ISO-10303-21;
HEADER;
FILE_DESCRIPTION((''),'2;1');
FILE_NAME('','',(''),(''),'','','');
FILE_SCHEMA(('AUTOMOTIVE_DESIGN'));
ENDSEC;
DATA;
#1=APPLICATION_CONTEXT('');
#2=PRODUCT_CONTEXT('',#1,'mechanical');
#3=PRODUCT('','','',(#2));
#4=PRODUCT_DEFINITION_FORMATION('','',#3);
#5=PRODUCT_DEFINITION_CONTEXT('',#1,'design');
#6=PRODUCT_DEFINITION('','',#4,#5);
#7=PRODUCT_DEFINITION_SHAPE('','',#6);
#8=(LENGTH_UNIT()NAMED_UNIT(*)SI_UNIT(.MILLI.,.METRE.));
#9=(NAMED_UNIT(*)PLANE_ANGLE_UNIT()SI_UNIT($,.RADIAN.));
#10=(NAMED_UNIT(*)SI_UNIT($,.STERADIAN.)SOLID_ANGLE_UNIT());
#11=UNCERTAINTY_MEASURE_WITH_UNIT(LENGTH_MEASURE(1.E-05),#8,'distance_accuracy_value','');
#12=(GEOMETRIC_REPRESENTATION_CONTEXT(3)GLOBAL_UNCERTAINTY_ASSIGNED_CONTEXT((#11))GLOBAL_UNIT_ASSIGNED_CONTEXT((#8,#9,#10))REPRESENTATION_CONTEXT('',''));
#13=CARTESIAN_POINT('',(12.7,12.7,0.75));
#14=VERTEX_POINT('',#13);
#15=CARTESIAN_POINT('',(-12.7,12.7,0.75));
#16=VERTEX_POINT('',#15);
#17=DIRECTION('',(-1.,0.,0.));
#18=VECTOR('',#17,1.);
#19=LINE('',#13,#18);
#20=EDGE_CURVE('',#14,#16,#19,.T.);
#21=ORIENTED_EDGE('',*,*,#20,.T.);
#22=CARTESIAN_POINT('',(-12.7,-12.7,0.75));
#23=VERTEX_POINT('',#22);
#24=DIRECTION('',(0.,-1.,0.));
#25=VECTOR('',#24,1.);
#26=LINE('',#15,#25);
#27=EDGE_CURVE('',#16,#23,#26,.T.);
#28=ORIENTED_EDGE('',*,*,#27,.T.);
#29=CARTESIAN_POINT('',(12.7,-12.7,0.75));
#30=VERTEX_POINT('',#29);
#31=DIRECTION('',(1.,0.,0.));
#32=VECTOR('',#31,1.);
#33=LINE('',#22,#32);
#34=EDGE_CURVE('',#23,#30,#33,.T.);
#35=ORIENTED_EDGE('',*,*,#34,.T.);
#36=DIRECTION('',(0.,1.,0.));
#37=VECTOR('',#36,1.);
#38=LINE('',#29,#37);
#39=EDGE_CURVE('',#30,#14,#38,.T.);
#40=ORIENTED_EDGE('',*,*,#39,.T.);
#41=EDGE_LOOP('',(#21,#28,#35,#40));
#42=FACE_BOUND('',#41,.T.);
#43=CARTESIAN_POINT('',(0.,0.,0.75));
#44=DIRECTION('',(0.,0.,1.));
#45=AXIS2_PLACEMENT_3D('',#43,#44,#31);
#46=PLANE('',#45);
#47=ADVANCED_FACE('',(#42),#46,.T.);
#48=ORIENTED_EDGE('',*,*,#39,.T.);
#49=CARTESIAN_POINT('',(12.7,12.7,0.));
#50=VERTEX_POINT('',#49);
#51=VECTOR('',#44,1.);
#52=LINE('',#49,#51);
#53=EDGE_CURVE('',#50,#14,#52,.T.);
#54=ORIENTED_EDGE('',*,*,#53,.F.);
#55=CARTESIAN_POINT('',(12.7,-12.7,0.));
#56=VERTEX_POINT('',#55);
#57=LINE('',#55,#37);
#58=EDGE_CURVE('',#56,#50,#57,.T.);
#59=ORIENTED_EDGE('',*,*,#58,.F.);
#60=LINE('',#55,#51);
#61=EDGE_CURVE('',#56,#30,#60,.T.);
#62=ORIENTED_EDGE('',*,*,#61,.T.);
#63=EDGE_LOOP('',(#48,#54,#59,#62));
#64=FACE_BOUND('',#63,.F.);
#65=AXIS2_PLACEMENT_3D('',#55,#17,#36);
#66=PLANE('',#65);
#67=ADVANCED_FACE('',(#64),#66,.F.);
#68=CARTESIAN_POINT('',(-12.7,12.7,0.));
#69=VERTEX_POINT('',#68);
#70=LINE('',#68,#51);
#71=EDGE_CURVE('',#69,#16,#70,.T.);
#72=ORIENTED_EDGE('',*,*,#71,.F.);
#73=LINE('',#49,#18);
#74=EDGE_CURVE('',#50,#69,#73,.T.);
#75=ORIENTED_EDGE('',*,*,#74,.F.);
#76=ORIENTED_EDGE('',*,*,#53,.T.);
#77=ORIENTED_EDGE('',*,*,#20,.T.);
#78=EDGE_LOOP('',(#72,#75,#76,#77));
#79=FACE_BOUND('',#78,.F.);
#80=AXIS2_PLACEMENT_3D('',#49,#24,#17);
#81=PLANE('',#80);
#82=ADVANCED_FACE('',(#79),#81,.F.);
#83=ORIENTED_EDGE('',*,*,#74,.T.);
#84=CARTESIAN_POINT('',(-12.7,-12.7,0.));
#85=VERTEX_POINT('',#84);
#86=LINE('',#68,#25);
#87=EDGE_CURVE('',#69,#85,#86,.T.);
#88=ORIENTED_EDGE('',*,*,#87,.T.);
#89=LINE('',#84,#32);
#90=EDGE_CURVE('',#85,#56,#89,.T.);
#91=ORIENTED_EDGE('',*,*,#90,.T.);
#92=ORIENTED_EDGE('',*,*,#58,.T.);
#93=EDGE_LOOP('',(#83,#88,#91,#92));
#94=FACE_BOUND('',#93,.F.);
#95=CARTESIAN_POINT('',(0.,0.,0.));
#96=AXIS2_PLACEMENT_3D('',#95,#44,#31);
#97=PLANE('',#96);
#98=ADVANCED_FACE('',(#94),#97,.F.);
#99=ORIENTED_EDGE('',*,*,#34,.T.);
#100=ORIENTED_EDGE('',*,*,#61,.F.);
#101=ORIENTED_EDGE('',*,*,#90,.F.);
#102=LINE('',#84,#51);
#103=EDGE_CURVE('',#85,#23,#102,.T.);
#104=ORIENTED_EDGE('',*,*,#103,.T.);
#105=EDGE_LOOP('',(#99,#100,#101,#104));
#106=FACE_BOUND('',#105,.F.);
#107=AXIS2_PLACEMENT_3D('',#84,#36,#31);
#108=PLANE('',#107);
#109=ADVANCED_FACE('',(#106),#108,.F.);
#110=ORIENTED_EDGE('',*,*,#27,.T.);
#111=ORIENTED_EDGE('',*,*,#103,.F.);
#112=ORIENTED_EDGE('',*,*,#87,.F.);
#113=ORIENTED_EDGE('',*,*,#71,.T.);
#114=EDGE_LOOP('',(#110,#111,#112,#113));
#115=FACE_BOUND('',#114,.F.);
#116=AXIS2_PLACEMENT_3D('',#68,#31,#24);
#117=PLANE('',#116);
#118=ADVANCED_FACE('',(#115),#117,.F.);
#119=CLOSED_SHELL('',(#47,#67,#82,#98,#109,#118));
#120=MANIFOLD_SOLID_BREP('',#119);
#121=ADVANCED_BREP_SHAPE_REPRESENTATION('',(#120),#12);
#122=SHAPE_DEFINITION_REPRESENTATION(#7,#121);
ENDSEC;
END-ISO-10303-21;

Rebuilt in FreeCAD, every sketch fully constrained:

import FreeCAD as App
import Part
import Sketcher
Q = App.Units.Quantity

doc = App.newDocument("Part")
body = doc.addObject("PartDesign::Body", "Body")

# Sketch on XY plane
sketch1 = body.newObject("Sketcher::SketchObject", "Sketch")
sketch1.AttachmentSupport = (doc.getObject("XY_Plane"), [""])
sketch1.MapMode = "FlatFace"
sketch1.addGeometry(Part.LineSegment(App.Vector(-13, 13, 0), App.Vector(-13, -13, 0)), False)
sketch1.addGeometry(Part.LineSegment(App.Vector(-13, -13, 0), App.Vector(13, -13, 0)), False)
sketch1.addGeometry(Part.LineSegment(App.Vector(13, -13, 0), App.Vector(13, 13, 0)), False)
sketch1.addGeometry(Part.LineSegment(App.Vector(13, 13, 0), App.Vector(-13, 13, 0)), False)
sketch1.addConstraint(Sketcher.Constraint("Coincident", 0, 2, 1, 1))
sketch1.addConstraint(Sketcher.Constraint("Coincident", 1, 2, 2, 1))
sketch1.addConstraint(Sketcher.Constraint("Coincident", 2, 2, 3, 1))
sketch1.addConstraint(Sketcher.Constraint("Coincident", 3, 2, 0, 1))
sketch1.addConstraint(Sketcher.Constraint("Vertical", 0))
sketch1.addConstraint(Sketcher.Constraint("Horizontal", 1))
sketch1.addConstraint(Sketcher.Constraint("Vertical", 2))
sketch1.addConstraint(Sketcher.Constraint("Horizontal", 3))
sketch1.addConstraint(Sketcher.Constraint("Symmetric", 0, 2, 2, 2, -1, 1))
sketch1.addConstraint(Sketcher.Constraint("Equal", 3, 0))
sketch1.addConstraint(Sketcher.Constraint("DistanceX", 1, 1, 1, 2, Q("1 in")))
pad1 = body.newObject("PartDesign::Pad", "Pad")
pad1.Profile = sketch1
pad1.Length = 0.75

doc.recompute()
